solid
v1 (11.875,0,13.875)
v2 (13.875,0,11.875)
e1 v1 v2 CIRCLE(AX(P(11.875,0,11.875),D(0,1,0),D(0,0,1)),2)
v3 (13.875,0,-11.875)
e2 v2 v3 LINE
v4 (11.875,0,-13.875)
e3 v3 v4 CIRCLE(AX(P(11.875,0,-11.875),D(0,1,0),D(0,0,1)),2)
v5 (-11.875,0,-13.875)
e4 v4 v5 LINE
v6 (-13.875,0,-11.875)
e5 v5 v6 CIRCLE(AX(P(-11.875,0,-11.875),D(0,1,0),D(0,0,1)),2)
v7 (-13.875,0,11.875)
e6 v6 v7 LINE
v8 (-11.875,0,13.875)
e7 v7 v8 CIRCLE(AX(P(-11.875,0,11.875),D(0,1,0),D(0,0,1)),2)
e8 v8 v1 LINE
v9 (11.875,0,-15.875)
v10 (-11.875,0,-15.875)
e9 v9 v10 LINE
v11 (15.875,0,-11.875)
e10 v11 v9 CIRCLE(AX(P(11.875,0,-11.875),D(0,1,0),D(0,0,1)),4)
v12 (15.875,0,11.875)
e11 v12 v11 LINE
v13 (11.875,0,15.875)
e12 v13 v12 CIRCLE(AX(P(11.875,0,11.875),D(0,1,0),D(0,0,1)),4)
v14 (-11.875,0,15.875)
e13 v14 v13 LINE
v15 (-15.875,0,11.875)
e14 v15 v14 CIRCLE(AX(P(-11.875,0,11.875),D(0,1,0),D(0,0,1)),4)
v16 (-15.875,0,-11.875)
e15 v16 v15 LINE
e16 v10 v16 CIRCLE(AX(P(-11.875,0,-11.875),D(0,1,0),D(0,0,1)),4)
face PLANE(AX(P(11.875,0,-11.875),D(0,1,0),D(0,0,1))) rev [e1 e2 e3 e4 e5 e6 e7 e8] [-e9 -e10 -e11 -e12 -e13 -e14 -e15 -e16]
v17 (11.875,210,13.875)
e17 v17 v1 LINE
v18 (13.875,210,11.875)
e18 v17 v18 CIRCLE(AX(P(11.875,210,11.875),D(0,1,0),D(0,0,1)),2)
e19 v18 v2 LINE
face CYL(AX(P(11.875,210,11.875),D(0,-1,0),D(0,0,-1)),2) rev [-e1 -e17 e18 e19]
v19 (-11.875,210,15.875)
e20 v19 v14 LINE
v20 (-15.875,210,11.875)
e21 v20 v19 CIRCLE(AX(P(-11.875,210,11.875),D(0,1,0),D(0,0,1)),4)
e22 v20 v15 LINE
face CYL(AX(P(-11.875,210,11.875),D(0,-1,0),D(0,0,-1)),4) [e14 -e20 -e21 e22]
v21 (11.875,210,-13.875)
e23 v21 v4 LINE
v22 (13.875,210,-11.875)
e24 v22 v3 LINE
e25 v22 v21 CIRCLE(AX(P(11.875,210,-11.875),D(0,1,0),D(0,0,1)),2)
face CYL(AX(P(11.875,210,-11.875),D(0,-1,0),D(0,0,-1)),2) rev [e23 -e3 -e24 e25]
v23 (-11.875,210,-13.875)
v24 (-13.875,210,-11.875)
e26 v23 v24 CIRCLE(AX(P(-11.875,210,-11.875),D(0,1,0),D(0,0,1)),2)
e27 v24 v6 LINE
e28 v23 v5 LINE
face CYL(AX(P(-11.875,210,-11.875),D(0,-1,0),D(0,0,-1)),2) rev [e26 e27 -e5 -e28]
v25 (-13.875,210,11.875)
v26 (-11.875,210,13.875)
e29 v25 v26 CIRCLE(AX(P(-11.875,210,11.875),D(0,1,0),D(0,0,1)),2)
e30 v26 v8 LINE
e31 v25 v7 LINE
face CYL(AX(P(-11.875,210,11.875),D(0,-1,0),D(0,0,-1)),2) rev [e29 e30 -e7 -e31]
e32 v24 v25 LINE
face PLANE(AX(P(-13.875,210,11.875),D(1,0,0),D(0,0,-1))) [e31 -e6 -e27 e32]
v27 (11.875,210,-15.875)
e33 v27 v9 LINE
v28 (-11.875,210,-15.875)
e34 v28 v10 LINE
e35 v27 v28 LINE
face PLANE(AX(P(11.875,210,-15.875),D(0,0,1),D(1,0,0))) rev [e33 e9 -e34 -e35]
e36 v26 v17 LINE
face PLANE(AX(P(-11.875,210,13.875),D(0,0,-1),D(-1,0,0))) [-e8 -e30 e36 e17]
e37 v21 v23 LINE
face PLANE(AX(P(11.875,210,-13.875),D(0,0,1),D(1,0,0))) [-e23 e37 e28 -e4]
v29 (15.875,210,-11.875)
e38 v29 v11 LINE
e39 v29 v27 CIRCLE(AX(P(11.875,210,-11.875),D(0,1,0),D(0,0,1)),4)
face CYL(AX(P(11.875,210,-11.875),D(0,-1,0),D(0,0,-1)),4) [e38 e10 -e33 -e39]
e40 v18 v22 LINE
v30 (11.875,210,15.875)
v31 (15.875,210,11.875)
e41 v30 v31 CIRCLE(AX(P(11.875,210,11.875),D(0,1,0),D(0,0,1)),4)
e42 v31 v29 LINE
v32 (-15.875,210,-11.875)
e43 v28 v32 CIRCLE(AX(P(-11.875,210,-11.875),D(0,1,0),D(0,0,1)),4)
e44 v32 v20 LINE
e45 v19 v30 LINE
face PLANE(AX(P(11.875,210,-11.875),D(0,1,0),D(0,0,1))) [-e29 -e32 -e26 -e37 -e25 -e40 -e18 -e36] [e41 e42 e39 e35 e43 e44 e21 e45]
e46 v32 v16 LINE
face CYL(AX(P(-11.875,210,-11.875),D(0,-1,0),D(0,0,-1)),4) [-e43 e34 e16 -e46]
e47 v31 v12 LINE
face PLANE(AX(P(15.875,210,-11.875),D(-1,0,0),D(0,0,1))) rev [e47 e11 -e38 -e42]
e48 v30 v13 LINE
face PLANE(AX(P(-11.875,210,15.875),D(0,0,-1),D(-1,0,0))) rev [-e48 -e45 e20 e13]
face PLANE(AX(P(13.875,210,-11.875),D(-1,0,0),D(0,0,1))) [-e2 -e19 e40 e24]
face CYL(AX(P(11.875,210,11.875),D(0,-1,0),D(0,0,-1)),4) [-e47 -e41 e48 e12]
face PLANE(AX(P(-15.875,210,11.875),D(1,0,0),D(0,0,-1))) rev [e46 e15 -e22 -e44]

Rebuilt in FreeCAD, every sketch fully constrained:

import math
import FreeCAD as App
import Part
import Sketcher
Q = App.Units.Quantity

doc = App.newDocument("Part")
params = doc.addObject("Spreadsheet::Sheet", "Params")
for row, (alias, value) in enumerate([
    ("sketch1_radius", "4 mm"),
    ("sketch1_radius2", "2 mm"),
    ("sketch1_width", "23.75 mm"),
    ("pad1_length", "210 mm"),
], start=1):
    params.set(f"A{row}", alias)
    params.set(f"B{row}", "=" + value)
    params.setAlias(f"B{row}", alias)

body = doc.addObject("PartDesign::Body", "Body")

# Sketch on XZ plane
sketch1 = body.newObject("Sketcher::SketchObject", "Sketch")
sketch1.AttachmentSupport = (doc.getObject("XZ_Plane"), [""])
sketch1.MapMode = "FlatFace"
sketch1.addGeometry([
    Part.LineSegment(App.Vector(-11.9, 15.9, 0), App.Vector(11.9, 15.9, 0)),  # 0
    Part.ArcOfCircle(Part.Circle(App.Vector(11.9, 11.9, 0), App.Vector(0, 0, 1), 4), math.radians(0), math.radians(90)),  # 1
    Part.LineSegment(App.Vector(15.9, 11.9, 0), App.Vector(15.9, -11.9, 0)),  # 2
    Part.ArcOfCircle(Part.Circle(App.Vector(11.9, -11.9, 0), App.Vector(0, 0, 1), 4), math.radians(-90), math.radians(0)),  # 3
    Part.LineSegment(App.Vector(11.9, -15.9, 0), App.Vector(-11.9, -15.9, 0)),  # 4
    Part.ArcOfCircle(Part.Circle(App.Vector(-11.9, -11.9, 0), App.Vector(0, 0, 1), 4), math.radians(180), math.radians(270)),  # 5
    Part.LineSegment(App.Vector(-15.9, -11.9, 0), App.Vector(-15.9, 11.9, 0)),  # 6
    Part.ArcOfCircle(Part.Circle(App.Vector(-11.9, 11.9, 0), App.Vector(0, 0, 1), 4), math.radians(90), math.radians(180)),  # 7
    Part.LineSegment(App.Vector(11.9, 13.9, 0), App.Vector(-11.9, 13.9, 0)),  # 8
    Part.ArcOfCircle(Part.Circle(App.Vector(-11.9, 11.9, 0), App.Vector(0, 0, 1), 2), math.radians(90), math.radians(180)),  # 9
    Part.LineSegment(App.Vector(-13.9, 11.9, 0), App.Vector(-13.9, -11.9, 0)),  # 10
    Part.ArcOfCircle(Part.Circle(App.Vector(-11.9, -11.9, 0), App.Vector(0, 0, 1), 2), math.radians(-180), math.radians(-90)),  # 11
    Part.LineSegment(App.Vector(-11.9, -13.9, 0), App.Vector(11.9, -13.9, 0)),  # 12
    Part.ArcOfCircle(Part.Circle(App.Vector(11.9, -11.9, 0), App.Vector(0, 0, 1), 2), math.radians(-90), math.radians(0)),  # 13
    Part.LineSegment(App.Vector(13.9, -11.9, 0), App.Vector(13.9, 11.9, 0)),  # 14
    Part.ArcOfCircle(Part.Circle(App.Vector(11.9, 11.9, 0), App.Vector(0, 0, 1), 2), math.radians(0), math.radians(90)),  # 15
], False)
sketch1.addConstraint([
    Sketcher.Constraint("Tangent", 0, 2, 1, 2),
    Sketcher.Constraint("Tangent", 1, 1, 2, 1),
    Sketcher.Constraint("Tangent", 2, 2, 3, 2),
    Sketcher.Constraint("Tangent", 3, 1, 4, 1),
    Sketcher.Constraint("Tangent", 4, 2, 5, 2),
    Sketcher.Constraint("Tangent", 5, 1, 6, 1),
    Sketcher.Constraint("Tangent", 6, 2, 7, 2),
    Sketcher.Constraint("Tangent", 7, 1, 0, 1),
    Sketcher.Constraint("Tangent", 8, 2, 9, 1),
    Sketcher.Constraint("Tangent", 9, 2, 10, 1),
    Sketcher.Constraint("Tangent", 10, 2, 11, 1),
    Sketcher.Constraint("Tangent", 11, 2, 12, 1),
    Sketcher.Constraint("Tangent", 12, 2, 13, 1),
    Sketcher.Constraint("Tangent", 13, 2, 14, 1),
    Sketcher.Constraint("Tangent", 14, 2, 15, 1),
    Sketcher.Constraint("Tangent", 15, 2, 8, 1),
    Sketcher.Constraint("Horizontal", 0),
    Sketcher.Constraint("Vertical", 2),
    Sketcher.Constraint("Horizontal", 4),
    Sketcher.Constraint("Vertical", 6),
    Sketcher.Constraint("Horizontal", 8),
    Sketcher.Constraint("Vertical", 10),
    Sketcher.Constraint("Horizontal", 12),
    Sketcher.Constraint("Vertical", 14),
    Sketcher.Constraint("Coincident", 9, 3, 7, 3),
    Sketcher.Constraint("Coincident", 11, 3, 5, 3),
    Sketcher.Constraint("Coincident", 13, 3, 3, 3),
    Sketcher.Constraint("Equal", 1, 3),
    Sketcher.Constraint("Equal", 3, 5),
    Sketcher.Constraint("Equal", 5, 7),
    Sketcher.Constraint("Equal", 13, 15),
    Sketcher.Constraint("Symmetric", 1, 3, 5, 3, -1, 1),
    Sketcher.Constraint("Equal", 12, 2),
    Sketcher.Constraint("Radius", 1, Q("4 mm")),
    Sketcher.Constraint("Radius", 9, Q("2 mm")),
    Sketcher.Constraint("DistanceX", 0, 1, 0, 2, Q("23.75 mm")),
])
sketch1.setExpression("Constraints[33]", "Params.sketch1_radius")
sketch1.setExpression("Constraints[34]", "Params.sketch1_radius2")
sketch1.setExpression("Constraints[35]", "Params.sketch1_width")
pad1 = body.newObject("PartDesign::Pad", "Pad")
pad1.Profile = sketch1
pad1.setExpression("Length", "Params.pad1_length")
pad1.Reversed = True

doc.recompute()
